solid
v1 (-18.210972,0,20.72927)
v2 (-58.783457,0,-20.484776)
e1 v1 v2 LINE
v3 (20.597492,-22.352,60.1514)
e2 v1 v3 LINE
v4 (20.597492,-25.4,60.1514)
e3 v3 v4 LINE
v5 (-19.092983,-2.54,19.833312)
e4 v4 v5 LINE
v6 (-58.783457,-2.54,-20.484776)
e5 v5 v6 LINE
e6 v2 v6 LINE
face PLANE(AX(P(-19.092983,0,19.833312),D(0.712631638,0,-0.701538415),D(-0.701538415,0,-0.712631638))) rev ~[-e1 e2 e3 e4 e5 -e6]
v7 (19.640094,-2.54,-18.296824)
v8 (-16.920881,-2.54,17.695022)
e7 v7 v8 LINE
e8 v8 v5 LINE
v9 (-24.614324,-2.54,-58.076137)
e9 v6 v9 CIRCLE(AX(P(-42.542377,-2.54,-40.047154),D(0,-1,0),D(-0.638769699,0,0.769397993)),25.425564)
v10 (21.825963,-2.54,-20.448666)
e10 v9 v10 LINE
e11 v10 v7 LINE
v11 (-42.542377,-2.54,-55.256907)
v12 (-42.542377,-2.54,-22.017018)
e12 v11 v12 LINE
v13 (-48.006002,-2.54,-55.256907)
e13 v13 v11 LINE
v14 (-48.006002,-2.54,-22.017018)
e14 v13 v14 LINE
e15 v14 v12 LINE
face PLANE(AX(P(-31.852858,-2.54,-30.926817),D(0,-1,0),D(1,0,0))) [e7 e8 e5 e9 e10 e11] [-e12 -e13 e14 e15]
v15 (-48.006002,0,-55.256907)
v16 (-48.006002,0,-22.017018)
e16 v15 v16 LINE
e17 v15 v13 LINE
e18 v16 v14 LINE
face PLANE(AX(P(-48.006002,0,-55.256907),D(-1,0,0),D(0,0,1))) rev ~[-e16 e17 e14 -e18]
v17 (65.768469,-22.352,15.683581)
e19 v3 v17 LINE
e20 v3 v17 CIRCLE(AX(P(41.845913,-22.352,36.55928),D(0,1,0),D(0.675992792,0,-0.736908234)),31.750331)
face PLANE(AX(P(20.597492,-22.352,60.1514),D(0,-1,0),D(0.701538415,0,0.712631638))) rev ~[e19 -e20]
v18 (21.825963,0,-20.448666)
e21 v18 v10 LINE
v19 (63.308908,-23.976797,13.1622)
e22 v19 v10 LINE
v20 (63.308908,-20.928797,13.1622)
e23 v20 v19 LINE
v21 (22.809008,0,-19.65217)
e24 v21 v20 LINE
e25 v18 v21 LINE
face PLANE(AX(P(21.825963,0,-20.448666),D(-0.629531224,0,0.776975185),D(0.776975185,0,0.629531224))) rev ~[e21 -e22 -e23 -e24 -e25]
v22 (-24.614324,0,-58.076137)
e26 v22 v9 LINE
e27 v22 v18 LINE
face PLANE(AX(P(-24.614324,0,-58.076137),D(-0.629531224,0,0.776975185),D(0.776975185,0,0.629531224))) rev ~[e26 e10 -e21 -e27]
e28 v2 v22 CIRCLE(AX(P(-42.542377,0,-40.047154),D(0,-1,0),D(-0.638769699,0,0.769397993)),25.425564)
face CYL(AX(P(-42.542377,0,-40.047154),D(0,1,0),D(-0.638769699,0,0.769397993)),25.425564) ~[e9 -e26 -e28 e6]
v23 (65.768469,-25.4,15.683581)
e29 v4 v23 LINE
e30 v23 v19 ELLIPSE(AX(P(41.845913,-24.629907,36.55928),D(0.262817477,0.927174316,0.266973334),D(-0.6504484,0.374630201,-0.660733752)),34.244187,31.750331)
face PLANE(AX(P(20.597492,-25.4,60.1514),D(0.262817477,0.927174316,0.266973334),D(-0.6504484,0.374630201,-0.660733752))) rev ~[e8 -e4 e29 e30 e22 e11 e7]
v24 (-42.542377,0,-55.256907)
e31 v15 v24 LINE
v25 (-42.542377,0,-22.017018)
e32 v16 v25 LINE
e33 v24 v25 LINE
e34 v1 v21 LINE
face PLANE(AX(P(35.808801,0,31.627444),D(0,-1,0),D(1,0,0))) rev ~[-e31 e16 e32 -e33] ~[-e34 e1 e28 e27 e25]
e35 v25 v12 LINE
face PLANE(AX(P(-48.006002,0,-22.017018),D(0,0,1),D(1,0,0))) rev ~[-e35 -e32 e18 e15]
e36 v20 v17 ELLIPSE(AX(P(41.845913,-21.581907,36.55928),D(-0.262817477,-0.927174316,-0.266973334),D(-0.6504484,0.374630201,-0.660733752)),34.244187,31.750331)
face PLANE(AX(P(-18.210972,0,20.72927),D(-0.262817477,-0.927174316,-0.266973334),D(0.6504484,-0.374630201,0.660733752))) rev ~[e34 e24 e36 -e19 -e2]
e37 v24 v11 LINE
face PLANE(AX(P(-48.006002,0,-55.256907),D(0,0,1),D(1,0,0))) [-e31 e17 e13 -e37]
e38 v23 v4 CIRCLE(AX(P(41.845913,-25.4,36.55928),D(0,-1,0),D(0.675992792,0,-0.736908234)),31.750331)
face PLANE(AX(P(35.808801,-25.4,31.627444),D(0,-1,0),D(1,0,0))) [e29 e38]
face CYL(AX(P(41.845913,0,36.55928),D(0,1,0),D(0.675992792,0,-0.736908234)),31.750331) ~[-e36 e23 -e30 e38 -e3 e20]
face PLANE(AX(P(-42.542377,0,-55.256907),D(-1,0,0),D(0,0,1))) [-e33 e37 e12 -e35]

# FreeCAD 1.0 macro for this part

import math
import FreeCAD as App
import Part
import Sketcher
from FreeCAD import Vector
Q = App.Units.Quantity


def add_polygon(sketch, points):
    """Adds a closed chain of lines whose ends are joined by coincident constraints."""
    first, n = sketch.GeometryCount, len(points)
    for a, b in zip(points, points[1:] + points[:1]):
        sketch.addGeometry(Part.LineSegment(App.Vector(*a, 0), App.Vector(*b, 0)), False)
    for i in range(n):
        sketch.addConstraint(Sketcher.Constraint("Coincident", first + i, 2, first + (i + 1) % n, 1))

doc = App.newDocument("Part")
body = doc.addObject("PartDesign::Body", "Body")

# Sketch on XZ plane
sketch1 = body.newObject("Sketcher::SketchObject", "Sketch")
sketch1.AttachmentSupport = (doc.getObject("XZ_Plane"), [""])
sketch1.MapMode = "FlatFace"
sketch1.addGeometry(Part.ArcOfCircle(Part.Circle(Vector(-42.542377, -40.047154, 0), Vector(0, 0, 1), 25.425564), math.radians(129.70014), math.radians(314.839174)), False)  # 0
sketch1.addGeometry(Part.LineSegment(Vector(-24.614324, -58.076137, 0), Vector(21.825963, -20.448666, 0)), False)  # 1
sketch1.addGeometry(Part.LineSegment(Vector(21.825963, -20.448666, 0), Vector(19.640094, -18.296824, 0)), False)  # 2
sketch1.addGeometry(Part.LineSegment(Vector(19.640094, -18.296824, 0), Vector(-16.920881, 17.695022, 0)), False)  # 3
sketch1.addGeometry(Part.LineSegment(Vector(-16.920881, 17.695022, 0), Vector(-19.092983, 19.833312, 0)), False)  # 4
sketch1.addGeometry(Part.LineSegment(Vector(-19.092983, 19.833312, 0), Vector(-58.783457, -20.484776, 0)), False)  # 5
add_polygon(sketch1, [(-42.542377, -55.256907), (-48.006002, -55.256907), (-48.006002, -22.017018), (-42.542377, -22.017018)])  # lines 6-9
sketch1.addConstraint([
    Sketcher.Constraint("Coincident", 0, 2, 1, 1),
    Sketcher.Constraint("Coincident", 1, 2, 2, 1),
    Sketcher.Constraint("Coincident", 2, 2, 3, 1),
    Sketcher.Constraint("Coincident", 3, 2, 4, 1),
    Sketcher.Constraint("Coincident", 4, 2, 5, 1),
    Sketcher.Constraint("Coincident", 5, 2, 0, 1),
    Sketcher.Constraint("Horizontal", 6),
    Sketcher.Constraint("Vertical", 7),
    Sketcher.Constraint("Horizontal", 8),
    Sketcher.Constraint("Vertical", 9),
    Sketcher.Constraint("Distance", 4, Q("0.12 in")),
    Sketcher.Constraint("DistanceX", 6, 2, -1, 1, Q("1.8900001 in")),
    Sketcher.Constraint("Radius", 0, Q("25.425564 mm")),
    Sketcher.Constraint("DistanceX", 0, 2, 2, 2, Q("1.7422999 in")),
    Sketcher.Constraint("DistanceY", 7, 1, 7, 2, Q("33.239889 mm")),
    Sketcher.Constraint("DistanceX", 4, 2, 3, 2, Q("2.172102 mm")),
    Sketcher.Constraint("DistanceY", 5, 2, 3, 2, Q("38.179799 mm")),
    Sketcher.Constraint("Distance", 1, Q("59.770618 mm")),
    Sketcher.Constraint("Distance", 2, Q("3.067319 mm")),
    Sketcher.Constraint("Distance", 3, Q("51.30417 mm")),
    Sketcher.Constraint("DistanceX", 6, 2, 6, 1, Q("5.463625 mm")),
    Sketcher.Constraint("DistanceX", 3, 2, -1, 1, Q("16.920881 mm")),
    Sketcher.Constraint("DistanceY", 0, 2, 1, 2, Q("37.627471 mm")),
    Sketcher.Constraint("DistanceX", 0, 3, 1, 2, Q("64.36834 mm")),
    Sketcher.Constraint("DistanceY", 1, 2, 3, 2, Q("38.143689 mm")),
    Sketcher.Constraint("DistanceY", 0, 2, 6, 2, Q("2.81923 mm")),
    Sketcher.Constraint("DistanceY", 0, 3, -1, 1, Q("40.047154 mm")),
])
pad1 = body.newObject("PartDesign::Pad", "Pad")
pad1.Profile = sketch1
pad1.Length = Q("0.1 in")

# Sketch on XZ plane
sketch2 = body.newObject("Sketcher::SketchObject", "Sketch001")
sketch2.AttachmentSupport = (doc.getObject("XZ_Plane"), [""])
sketch2.MapMode = "FlatFace"
sketch2.addGeometry([
    Part.LineSegment(Vector(19.640094, -18.296824, 0), Vector(21.825963, -20.448666, 0)),  # 0
    Part.LineSegment(Vector(21.825963, -20.448666, 0), Vector(63.308908, 13.1622, 0)),  # 1
    Part.ArcOfCircle(Part.Circle(Vector(41.845913, 36.55928, 0), Vector(0, 0, 1), 31.750331), math.radians(-47.468706), math.radians(132.00802)),  # 2
    Part.LineSegment(Vector(20.597492, 60.1514, 0), Vector(-19.092983, 19.833312, 0)),  # 3
    Part.LineSegment(Vector(-19.092983, 19.833312, 0), Vector(-16.920881, 17.695022, 0)),  # 4
    Part.LineSegment(Vector(-16.920881, 17.695022, 0), Vector(19.640094, -18.296824, 0)),  # 5
], False)
sketch2.addConstraint([
    Sketcher.Constraint("Coincident", 0, 2, 1, 1),
    Sketcher.Constraint("Coincident", 1, 2, 2, 1),
    Sketcher.Constraint("Coincident", 2, 2, 3, 1),
    Sketcher.Constraint("Coincident", 3, 2, 4, 1),
    Sketcher.Constraint("Coincident", 4, 2, 5, 1),
    Sketcher.Constraint("Coincident", 5, 2, 0, 1),
    Sketcher.Constraint("Perpendicular", 0, 3),
    Sketcher.Constraint("Perpendicular", 3, 4),
    Sketcher.Constraint("Parallel", 4, 5),
    Sketcher.Constraint("Distance", 4, Q("0.12 in")),
    Sketcher.Constraint("Radius", 2, Q("31.750331 mm")),
    Sketcher.Constraint("DistanceX", 2, 3, 1, 2, Q("0.8449998 in")),
    Sketcher.Constraint("DistanceY", -1, 1, 1, 2, Q("13.1622 mm")),
    Sketcher.Constraint("DistanceY", -1, 1, 2, 2, Q("60.1514 mm")),
    Sketcher.Constraint("DistanceX", 3, 2, 4, 2, Q("2.172102 mm")),
    Sketcher.Constraint("Distance", 0, Q("3.067319 mm")),
    Sketcher.Constraint("Distance", 1, Q("53.390308 mm")),
    Sketcher.Constraint("Distance", 5, Q("51.30417 mm")),
    Sketcher.Constraint("DistanceX", -1, 1, 2, 2, Q("20.597492 mm")),
])
pad2 = body.newObject("PartDesign::Pad", "Pad001")
pad2.Profile = sketch2
pad2.Length = Q("1 in")

# Sketch on an angled plane
sketch3 = body.newObject("Sketcher::SketchObject", "Sketch002")
sketch3.Placement = App.Placement(Vector(-19.611689, 0, 19.306403), App.Rotation(Vector(0, -1, 0), Vector(0.701538415, 0, 0.712631638), Vector(-0.712631638, 0, 0.701538415), "ZXY"))
add_polygon(sketch3, [(25, 57), (3, 1), (25, 1)])  # lines 0-2
sketch3.addConstraint([
    Sketcher.Constraint("Horizontal", 1),
    Sketcher.Constraint("Vertical", 2),
    Sketcher.Constraint("DistanceX", 1, 1, 1, 2, Q("0.9 in")),
    Sketcher.Constraint("DistanceX", -1, 1, 1, 2, Q("1 in")),
    Sketcher.Constraint("DistanceY", 2, 1, 2, 2, Q("56.576338 mm")),
    Sketcher.Constraint("DistanceY", -1, 1, 0, 2, Q("0.739385 mm")),
])
pocket1 = body.newObject("PartDesign::Pocket", "Pocket")
pocket1.Profile = sketch3
pocket1.Type = "ThroughAll"

# Sketch on an angled plane
sketch4 = body.newObject("Sketcher::SketchObject", "Sketch003")
sketch4.Placement = App.Placement(Vector(-19.611689, 0, 19.306403), App.Rotation(Vector(0, -1, 0), Vector(0.701538415, 0, 0.712631638), Vector(-0.712631638, 0, 0.701538415), "ZXY"))
add_polygon(sketch4, [(0, 2), (22, 57), (0, 57)])  # lines 0-2
sketch4.addConstraint([
    Sketcher.Constraint("Horizontal", 1),
    Sketcher.Constraint("Vertical", 2),
    Sketcher.Constraint("PointOnObject", 1, 2, -2),
    Sketcher.Constraint("DistanceX", 1, 2, 1, 1, Q("0.88 in")),
    Sketcher.Constraint("Distance", 0, Q("59.66417 mm")),
    Sketcher.Constraint("DistanceY", -1, 1, 0, 2, Q("57.315723 mm")),
])
pocket2 = body.newObject("PartDesign::Pocket", "Pocket001")
pocket2.Profile = sketch4
pocket2.Type = "ThroughAll"

# Sketch on an angled plane
sketch5 = body.newObject("Sketcher::SketchObject", "Sketch004")
sketch5.Placement = App.Placement(Vector(-19.611689, 0, 19.306403), App.Rotation(Vector(0, -1, 0), Vector(0.701538415, 0, 0.712631638), Vector(-0.712631638, 0, 0.701538415), "ZXY"))
add_polygon(sketch5, [(0, 106), (0, 57), (22, 57), (22, 106)])  # lines 0-3
sketch5.addConstraint([
    Sketcher.Constraint("Vertical", 0),
    Sketcher.Constraint("Horizontal", 1),
    Sketcher.Constraint("Vertical", 2),
    Sketcher.Constraint("Horizontal", 3),
    Sketcher.Constraint("PointOnObject", 0, 2, -2),
    Sketcher.Constraint("DistanceX", 1, 1, 1, 2, Q("0.88 in")),
    Sketcher.Constraint("DistanceY", 0, 2, 0, 1, Q("49.160547 mm")),
    Sketcher.Constraint("DistanceY", -1, 1, 2, 2, Q("106.47627 mm")),
])
pocket3 = body.newObject("PartDesign::Pocket", "Pocket002")
pocket3.Profile = sketch5
pocket3.Type = "ThroughAll"

doc.recompute()
